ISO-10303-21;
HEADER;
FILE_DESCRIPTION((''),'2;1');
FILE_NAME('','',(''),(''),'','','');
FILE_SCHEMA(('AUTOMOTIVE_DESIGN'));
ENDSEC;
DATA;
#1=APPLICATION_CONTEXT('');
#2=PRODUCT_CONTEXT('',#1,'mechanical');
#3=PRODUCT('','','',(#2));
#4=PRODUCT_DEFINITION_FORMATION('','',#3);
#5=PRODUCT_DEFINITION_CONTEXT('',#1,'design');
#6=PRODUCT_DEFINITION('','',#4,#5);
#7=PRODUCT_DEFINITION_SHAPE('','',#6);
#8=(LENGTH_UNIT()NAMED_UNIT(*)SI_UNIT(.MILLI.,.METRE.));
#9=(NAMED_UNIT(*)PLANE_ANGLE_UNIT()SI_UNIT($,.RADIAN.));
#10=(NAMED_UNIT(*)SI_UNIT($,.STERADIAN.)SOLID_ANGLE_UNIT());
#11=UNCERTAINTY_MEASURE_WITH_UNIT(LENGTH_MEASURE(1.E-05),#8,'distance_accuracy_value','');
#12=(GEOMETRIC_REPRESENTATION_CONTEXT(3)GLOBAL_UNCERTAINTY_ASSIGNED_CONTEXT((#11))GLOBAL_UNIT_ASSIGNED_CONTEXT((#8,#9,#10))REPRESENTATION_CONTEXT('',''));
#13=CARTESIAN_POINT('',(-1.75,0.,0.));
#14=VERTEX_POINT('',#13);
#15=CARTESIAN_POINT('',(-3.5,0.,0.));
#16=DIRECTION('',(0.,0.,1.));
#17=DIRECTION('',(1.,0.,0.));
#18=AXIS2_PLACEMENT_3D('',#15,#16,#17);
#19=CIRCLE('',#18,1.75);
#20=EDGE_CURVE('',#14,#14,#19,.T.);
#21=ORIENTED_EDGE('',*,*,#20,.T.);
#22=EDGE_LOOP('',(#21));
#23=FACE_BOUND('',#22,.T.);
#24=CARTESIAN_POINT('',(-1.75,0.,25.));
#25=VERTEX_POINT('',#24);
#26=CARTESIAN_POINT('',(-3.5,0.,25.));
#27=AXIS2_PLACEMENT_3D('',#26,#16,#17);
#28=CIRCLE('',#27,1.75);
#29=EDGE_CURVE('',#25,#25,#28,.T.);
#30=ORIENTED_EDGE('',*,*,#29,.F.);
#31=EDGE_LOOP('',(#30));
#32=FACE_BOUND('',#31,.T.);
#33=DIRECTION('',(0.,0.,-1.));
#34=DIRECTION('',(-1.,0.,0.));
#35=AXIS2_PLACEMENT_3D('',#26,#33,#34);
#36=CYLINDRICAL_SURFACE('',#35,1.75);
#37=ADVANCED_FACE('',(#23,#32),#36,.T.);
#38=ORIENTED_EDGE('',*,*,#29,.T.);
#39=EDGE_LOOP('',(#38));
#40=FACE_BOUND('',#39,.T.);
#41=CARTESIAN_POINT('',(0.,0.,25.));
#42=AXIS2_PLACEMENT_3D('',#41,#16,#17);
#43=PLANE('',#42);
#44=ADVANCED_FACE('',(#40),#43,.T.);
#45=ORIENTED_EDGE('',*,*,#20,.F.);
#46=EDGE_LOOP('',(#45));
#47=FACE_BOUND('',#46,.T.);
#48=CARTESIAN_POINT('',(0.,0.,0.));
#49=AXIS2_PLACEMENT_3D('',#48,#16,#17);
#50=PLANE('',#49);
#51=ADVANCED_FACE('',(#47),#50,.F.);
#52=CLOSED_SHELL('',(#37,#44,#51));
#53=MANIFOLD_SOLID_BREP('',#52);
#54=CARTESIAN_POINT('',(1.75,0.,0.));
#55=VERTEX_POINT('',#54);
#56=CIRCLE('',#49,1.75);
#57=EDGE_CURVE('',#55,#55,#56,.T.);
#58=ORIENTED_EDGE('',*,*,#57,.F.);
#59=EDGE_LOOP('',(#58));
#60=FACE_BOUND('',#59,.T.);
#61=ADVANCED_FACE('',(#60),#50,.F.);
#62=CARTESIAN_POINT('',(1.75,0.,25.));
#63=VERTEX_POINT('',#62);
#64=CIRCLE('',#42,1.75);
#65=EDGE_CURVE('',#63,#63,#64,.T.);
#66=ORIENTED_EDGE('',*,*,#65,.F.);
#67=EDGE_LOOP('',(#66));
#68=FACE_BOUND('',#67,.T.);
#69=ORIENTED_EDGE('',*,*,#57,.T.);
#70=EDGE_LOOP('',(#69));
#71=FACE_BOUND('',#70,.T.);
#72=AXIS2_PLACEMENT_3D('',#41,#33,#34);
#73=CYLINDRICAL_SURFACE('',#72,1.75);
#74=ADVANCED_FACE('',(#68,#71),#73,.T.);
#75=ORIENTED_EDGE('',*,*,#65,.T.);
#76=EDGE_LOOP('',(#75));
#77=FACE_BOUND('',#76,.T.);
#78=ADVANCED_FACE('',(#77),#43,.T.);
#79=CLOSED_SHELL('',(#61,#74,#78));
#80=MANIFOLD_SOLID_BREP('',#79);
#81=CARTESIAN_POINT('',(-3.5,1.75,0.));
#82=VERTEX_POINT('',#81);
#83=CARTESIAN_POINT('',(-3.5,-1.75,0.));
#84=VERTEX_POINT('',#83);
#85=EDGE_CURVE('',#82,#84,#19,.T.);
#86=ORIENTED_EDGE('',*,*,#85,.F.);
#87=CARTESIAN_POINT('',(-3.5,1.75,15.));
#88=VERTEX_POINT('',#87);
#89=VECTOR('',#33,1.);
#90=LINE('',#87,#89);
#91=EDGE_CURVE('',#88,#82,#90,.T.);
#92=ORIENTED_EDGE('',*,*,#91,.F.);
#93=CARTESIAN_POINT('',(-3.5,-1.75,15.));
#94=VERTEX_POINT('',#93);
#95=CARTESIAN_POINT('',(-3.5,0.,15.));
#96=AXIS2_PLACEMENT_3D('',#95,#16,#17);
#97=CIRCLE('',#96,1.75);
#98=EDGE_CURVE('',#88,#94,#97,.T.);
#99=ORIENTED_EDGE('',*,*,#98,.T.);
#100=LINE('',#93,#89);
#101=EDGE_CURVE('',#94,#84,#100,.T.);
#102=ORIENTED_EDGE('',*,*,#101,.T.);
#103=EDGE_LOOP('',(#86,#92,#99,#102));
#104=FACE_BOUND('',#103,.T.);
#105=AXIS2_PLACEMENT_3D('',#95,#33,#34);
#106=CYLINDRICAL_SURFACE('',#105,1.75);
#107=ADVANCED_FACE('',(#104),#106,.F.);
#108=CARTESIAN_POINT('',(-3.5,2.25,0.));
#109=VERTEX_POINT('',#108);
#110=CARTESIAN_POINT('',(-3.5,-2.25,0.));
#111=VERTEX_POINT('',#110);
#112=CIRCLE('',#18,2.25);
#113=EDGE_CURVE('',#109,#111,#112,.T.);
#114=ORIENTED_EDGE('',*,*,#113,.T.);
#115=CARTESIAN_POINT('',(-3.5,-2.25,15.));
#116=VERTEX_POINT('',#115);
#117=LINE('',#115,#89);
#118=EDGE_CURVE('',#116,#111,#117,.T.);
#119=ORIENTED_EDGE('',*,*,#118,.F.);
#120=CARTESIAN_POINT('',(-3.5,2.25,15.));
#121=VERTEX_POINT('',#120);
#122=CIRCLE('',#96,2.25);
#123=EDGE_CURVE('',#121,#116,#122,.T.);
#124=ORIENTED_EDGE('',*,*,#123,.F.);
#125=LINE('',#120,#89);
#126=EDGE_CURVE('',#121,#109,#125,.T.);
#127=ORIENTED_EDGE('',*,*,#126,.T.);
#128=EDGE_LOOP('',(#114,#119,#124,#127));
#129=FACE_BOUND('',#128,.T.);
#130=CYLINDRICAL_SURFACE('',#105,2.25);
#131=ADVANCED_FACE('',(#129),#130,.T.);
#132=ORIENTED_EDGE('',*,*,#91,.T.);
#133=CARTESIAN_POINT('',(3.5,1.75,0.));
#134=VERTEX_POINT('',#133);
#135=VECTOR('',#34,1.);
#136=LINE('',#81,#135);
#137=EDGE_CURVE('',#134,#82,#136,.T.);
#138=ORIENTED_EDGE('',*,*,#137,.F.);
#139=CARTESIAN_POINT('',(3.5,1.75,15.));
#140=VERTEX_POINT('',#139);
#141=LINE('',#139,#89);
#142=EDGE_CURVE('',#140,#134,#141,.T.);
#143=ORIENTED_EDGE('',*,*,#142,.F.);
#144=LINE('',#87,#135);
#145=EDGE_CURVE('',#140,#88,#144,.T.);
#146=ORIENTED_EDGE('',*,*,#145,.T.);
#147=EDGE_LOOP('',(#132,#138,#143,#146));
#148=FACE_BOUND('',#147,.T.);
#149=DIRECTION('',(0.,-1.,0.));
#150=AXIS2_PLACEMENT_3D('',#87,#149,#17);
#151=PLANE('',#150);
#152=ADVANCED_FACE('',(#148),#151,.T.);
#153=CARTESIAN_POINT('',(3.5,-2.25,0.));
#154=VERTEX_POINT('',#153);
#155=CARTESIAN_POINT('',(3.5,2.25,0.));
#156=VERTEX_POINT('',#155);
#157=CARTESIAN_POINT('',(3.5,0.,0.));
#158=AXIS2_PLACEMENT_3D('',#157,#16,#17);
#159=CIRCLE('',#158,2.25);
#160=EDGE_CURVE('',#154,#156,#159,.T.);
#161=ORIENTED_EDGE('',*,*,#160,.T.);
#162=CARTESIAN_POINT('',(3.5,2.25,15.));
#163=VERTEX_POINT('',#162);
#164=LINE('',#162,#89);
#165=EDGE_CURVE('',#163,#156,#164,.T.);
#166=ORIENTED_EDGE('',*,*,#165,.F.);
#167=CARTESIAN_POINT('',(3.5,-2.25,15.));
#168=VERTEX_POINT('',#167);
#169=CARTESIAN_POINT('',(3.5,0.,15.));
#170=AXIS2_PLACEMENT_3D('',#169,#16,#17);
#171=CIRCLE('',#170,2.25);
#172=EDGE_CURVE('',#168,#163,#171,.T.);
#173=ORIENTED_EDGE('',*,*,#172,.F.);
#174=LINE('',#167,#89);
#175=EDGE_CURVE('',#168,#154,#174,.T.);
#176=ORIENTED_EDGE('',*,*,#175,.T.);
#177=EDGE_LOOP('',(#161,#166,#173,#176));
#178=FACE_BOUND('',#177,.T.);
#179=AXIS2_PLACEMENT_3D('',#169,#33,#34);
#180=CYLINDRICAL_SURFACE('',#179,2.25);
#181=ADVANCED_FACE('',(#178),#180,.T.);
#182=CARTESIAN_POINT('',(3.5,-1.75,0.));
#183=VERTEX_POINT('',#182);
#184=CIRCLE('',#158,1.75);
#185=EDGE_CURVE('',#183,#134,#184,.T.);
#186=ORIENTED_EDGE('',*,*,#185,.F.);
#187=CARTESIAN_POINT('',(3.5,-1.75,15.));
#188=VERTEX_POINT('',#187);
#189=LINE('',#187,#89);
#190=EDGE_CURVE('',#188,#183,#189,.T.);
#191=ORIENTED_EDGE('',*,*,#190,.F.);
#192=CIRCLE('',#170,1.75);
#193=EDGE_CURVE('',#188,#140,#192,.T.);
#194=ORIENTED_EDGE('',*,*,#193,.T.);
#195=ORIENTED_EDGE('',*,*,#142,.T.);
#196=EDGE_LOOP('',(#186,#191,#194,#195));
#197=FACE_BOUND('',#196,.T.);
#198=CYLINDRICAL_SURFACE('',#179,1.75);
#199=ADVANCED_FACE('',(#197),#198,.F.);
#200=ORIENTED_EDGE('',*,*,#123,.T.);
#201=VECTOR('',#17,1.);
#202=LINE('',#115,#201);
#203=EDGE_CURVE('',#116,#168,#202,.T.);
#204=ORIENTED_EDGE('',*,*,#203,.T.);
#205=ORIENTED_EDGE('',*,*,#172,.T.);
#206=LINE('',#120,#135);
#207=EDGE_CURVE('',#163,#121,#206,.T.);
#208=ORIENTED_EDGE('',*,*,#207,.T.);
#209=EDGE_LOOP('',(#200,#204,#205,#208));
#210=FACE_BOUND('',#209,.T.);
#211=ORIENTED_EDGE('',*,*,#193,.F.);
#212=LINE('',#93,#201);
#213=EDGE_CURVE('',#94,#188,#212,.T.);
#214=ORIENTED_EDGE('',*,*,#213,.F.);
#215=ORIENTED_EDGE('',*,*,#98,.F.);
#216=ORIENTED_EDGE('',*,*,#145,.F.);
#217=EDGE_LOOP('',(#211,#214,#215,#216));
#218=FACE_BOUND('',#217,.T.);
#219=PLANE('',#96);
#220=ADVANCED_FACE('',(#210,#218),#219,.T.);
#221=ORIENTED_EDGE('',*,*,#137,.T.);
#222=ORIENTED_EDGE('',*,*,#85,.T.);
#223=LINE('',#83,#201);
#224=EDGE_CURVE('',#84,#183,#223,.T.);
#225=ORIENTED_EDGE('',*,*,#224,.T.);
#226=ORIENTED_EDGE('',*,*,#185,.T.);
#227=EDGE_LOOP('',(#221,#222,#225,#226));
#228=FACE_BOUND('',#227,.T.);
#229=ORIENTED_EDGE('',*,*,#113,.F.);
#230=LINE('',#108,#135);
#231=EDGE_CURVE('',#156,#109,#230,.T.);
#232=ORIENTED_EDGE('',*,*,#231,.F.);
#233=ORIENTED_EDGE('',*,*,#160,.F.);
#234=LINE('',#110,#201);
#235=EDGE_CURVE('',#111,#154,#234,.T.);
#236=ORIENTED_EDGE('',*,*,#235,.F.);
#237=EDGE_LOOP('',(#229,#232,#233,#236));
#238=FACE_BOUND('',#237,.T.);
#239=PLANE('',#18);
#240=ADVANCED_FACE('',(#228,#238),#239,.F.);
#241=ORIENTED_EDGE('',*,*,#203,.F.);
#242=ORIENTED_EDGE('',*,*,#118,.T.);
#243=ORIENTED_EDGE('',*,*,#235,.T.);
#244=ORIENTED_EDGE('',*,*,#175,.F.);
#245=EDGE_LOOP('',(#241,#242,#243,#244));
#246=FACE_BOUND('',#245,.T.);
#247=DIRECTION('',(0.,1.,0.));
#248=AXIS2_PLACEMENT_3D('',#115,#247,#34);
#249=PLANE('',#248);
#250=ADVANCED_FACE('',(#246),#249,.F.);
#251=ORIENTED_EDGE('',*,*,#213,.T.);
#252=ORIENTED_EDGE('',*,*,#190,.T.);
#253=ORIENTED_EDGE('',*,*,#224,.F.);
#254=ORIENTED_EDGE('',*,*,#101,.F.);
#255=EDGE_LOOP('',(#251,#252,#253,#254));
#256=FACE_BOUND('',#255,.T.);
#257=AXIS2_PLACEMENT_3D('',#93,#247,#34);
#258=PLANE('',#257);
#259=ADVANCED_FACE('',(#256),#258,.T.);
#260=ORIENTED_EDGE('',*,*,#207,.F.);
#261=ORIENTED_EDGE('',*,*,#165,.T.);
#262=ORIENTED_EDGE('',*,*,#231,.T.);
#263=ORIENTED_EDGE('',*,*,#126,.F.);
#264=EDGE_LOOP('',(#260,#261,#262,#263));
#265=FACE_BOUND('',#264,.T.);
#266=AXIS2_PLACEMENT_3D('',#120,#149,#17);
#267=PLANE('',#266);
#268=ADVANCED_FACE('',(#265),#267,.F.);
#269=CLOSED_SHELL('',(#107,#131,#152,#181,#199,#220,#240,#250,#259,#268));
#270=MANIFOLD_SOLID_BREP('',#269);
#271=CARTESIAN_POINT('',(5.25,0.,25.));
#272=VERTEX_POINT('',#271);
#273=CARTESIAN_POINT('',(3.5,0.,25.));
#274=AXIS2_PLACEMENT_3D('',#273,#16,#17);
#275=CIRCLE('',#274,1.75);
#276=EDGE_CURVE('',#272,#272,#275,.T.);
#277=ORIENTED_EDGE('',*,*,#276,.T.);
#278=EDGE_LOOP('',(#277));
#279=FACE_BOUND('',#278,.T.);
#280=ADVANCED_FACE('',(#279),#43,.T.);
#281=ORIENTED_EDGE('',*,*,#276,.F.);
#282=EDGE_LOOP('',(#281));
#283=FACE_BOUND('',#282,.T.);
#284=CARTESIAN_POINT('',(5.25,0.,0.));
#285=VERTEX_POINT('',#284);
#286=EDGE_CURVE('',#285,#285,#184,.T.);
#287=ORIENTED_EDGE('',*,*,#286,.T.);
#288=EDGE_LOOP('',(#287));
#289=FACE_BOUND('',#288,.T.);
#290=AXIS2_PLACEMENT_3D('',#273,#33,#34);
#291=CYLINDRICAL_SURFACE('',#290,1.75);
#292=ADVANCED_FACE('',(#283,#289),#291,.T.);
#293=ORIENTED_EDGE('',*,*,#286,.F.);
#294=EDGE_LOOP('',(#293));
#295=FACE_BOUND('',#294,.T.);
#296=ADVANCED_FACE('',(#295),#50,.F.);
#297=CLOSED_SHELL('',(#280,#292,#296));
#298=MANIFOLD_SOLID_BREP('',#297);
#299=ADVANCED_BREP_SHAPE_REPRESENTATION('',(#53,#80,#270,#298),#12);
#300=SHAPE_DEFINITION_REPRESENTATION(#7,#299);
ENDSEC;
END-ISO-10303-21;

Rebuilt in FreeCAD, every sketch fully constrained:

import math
import FreeCAD as App
import Part
import Sketcher
Q = App.Units.Quantity

doc = App.newDocument("Part")
body = doc.addObject("PartDesign::Body", "Body")

sketch1 = doc.addObject("Sketcher::SketchObject", "Sketch")
body.addObject(sketch1)
sketch1.AttachmentSupport = (doc.XY_Plane, [""])
sketch1.MapMode = "FlatFace"
sketch1.addGeometry(Part.Circle(App.Vector(3.5, 0, 0), App.Vector(0, 0, 1), 1.75), False)
sketch1.addConstraint(Sketcher.Constraint("PointOnObject", 0, 3, -1))
sketch1.addConstraint(Sketcher.Constraint("Diameter", 0, Q("3.5 mm")))
sketch1.addConstraint(Sketcher.Constraint("DistanceX", -1, 1, 0, 3, Q("3.5 mm")))
pad1 = doc.addObject("PartDesign::Pad", "Pad")
body.addObject(pad1)
pad1.Profile = sketch1
pad1.Length = 25
body2 = doc.addObject("PartDesign::Body", "Body001")

sketch2 = doc.addObject("Sketcher::SketchObject", "Sketch001")
body2.addObject(sketch2)
sketch2.AttachmentSupport = (doc.getObject("XY_Plane001"), [""])
sketch2.MapMode = "FlatFace"
sketch2.addGeometry(Part.Circle(App.Vector(0, 0, 0), App.Vector(0, 0, 1), 1.75), False)
sketch2.addConstraint(Sketcher.Constraint("Coincident", 0, 3, -1, 1))
sketch2.addConstraint(Sketcher.Constraint("Diameter", 0, Q("3.5 mm")))
pad2 = doc.addObject("PartDesign::Pad", "Pad001")
body2.addObject(pad2)
pad2.Profile = sketch2
pad2.Length = 25
body3 = doc.addObject("PartDesign::Body", "Body002")

sketch3 = doc.addObject("Sketcher::SketchObject", "Sketch002")
body3.addObject(sketch3)
sketch3.AttachmentSupport = (doc.getObject("XY_Plane002"), [""])
sketch3.MapMode = "FlatFace"
sketch3.addGeometry(Part.Circle(App.Vector(-3.5, 0, 0), App.Vector(0, 0, 1), 1.75), False)
sketch3.addConstraint(Sketcher.Constraint("PointOnObject", 0, 3, -1))
sketch3.addConstraint(Sketcher.Constraint("Diameter", 0, Q("3.5 mm")))
sketch3.addConstraint(Sketcher.Constraint("DistanceX", 0, 3, -1, 1, Q("3.5 mm")))
pad3 = doc.addObject("PartDesign::Pad", "Pad002")
body3.addObject(pad3)
pad3.Profile = sketch3
pad3.Length = 25
body4 = doc.addObject("PartDesign::Body", "Body003")

sketch4 = doc.addObject("Sketcher::SketchObject", "Sketch003")
body4.addObject(sketch4)
sketch4.AttachmentSupport = (doc.getObject("XY_Plane003"), [""])
sketch4.MapMode = "FlatFace"
sketch4.addGeometry(Part.LineSegment(App.Vector(-3.5, -2.25, 0), App.Vector(3.5, -2.25, 0)), False)
sketch4.addGeometry(Part.ArcOfCircle(Part.Circle(App.Vector(3.5, 0, 0), App.Vector(0, 0, 1), 2.25), math.radians(-90), math.radians(90)), False)
sketch4.addGeometry(Part.LineSegment(App.Vector(3.5, 2.25, 0), App.Vector(-3.5, 2.25, 0)), False)
sketch4.addGeometry(Part.ArcOfCircle(Part.Circle(App.Vector(-3.5, 0, 0), App.Vector(0, 0, 1), 2.25), math.radians(90), math.radians(270)), False)
sketch4.addGeometry(Part.LineSegment(App.Vector(3.5, -1.75, 0), App.Vector(-3.5, -1.75, 0)), False)
sketch4.addGeometry(Part.ArcOfCircle(Part.Circle(App.Vector(-3.5, 0, 0), App.Vector(0, 0, 1), 1.75), math.radians(90), math.radians(270)), False)
sketch4.addGeometry(Part.LineSegment(App.Vector(-3.5, 1.75, 0), App.Vector(3.5, 1.75, 0)), False)
sketch4.addGeometry(Part.ArcOfCircle(Part.Circle(App.Vector(3.5, 0, 0), App.Vector(0, 0, 1), 1.75), math.radians(-90), math.radians(90)), False)
sketch4.addConstraint(Sketcher.Constraint("Tangent", 0, 2, 1, 1))
sketch4.addConstraint(Sketcher.Constraint("Tangent", 1, 2, 2, 1))
sketch4.addConstraint(Sketcher.Constraint("Tangent", 2, 2, 3, 1))
sketch4.addConstraint(Sketcher.Constraint("Tangent", 3, 2, 0, 1))
sketch4.addConstraint(Sketcher.Constraint("Tangent", 4, 2, 5, 2))
sketch4.addConstraint(Sketcher.Constraint("Tangent", 5, 1, 6, 1))
sketch4.addConstraint(Sketcher.Constraint("Tangent", 6, 2, 7, 2))
sketch4.addConstraint(Sketcher.Constraint("Tangent", 7, 1, 4, 1))
sketch4.addConstraint(Sketcher.Constraint("Horizontal", 0))
sketch4.addConstraint(Sketcher.Constraint("Horizontal", 2))
sketch4.addConstraint(Sketcher.Constraint("Horizontal", 4))
sketch4.addConstraint(Sketcher.Constraint("Horizontal", 6))
sketch4.addConstraint(Sketcher.Constraint("Coincident", 5, 3, 3, 3))
sketch4.addConstraint(Sketcher.Constraint("Symmetric", 1, 3, 3, 3, -1, 1))
sketch4.addConstraint(Sketcher.Constraint("Vertical", 7, 3, 0, 2))
sketch4.addConstraint(Sketcher.Constraint("DistanceX", 0, 1, 0, 2, Q("7 mm")))
sketch4.addConstraint(Sketcher.Constraint("Radius", 1, Q("2.25 mm")))
sketch4.addConstraint(Sketcher.Constraint("Radius", 5, Q("1.75 mm")))
pad4 = doc.addObject("PartDesign::Pad", "Pad003")
body4.addObject(pad4)
pad4.Profile = sketch4
pad4.Length = 15

doc.recompute()
